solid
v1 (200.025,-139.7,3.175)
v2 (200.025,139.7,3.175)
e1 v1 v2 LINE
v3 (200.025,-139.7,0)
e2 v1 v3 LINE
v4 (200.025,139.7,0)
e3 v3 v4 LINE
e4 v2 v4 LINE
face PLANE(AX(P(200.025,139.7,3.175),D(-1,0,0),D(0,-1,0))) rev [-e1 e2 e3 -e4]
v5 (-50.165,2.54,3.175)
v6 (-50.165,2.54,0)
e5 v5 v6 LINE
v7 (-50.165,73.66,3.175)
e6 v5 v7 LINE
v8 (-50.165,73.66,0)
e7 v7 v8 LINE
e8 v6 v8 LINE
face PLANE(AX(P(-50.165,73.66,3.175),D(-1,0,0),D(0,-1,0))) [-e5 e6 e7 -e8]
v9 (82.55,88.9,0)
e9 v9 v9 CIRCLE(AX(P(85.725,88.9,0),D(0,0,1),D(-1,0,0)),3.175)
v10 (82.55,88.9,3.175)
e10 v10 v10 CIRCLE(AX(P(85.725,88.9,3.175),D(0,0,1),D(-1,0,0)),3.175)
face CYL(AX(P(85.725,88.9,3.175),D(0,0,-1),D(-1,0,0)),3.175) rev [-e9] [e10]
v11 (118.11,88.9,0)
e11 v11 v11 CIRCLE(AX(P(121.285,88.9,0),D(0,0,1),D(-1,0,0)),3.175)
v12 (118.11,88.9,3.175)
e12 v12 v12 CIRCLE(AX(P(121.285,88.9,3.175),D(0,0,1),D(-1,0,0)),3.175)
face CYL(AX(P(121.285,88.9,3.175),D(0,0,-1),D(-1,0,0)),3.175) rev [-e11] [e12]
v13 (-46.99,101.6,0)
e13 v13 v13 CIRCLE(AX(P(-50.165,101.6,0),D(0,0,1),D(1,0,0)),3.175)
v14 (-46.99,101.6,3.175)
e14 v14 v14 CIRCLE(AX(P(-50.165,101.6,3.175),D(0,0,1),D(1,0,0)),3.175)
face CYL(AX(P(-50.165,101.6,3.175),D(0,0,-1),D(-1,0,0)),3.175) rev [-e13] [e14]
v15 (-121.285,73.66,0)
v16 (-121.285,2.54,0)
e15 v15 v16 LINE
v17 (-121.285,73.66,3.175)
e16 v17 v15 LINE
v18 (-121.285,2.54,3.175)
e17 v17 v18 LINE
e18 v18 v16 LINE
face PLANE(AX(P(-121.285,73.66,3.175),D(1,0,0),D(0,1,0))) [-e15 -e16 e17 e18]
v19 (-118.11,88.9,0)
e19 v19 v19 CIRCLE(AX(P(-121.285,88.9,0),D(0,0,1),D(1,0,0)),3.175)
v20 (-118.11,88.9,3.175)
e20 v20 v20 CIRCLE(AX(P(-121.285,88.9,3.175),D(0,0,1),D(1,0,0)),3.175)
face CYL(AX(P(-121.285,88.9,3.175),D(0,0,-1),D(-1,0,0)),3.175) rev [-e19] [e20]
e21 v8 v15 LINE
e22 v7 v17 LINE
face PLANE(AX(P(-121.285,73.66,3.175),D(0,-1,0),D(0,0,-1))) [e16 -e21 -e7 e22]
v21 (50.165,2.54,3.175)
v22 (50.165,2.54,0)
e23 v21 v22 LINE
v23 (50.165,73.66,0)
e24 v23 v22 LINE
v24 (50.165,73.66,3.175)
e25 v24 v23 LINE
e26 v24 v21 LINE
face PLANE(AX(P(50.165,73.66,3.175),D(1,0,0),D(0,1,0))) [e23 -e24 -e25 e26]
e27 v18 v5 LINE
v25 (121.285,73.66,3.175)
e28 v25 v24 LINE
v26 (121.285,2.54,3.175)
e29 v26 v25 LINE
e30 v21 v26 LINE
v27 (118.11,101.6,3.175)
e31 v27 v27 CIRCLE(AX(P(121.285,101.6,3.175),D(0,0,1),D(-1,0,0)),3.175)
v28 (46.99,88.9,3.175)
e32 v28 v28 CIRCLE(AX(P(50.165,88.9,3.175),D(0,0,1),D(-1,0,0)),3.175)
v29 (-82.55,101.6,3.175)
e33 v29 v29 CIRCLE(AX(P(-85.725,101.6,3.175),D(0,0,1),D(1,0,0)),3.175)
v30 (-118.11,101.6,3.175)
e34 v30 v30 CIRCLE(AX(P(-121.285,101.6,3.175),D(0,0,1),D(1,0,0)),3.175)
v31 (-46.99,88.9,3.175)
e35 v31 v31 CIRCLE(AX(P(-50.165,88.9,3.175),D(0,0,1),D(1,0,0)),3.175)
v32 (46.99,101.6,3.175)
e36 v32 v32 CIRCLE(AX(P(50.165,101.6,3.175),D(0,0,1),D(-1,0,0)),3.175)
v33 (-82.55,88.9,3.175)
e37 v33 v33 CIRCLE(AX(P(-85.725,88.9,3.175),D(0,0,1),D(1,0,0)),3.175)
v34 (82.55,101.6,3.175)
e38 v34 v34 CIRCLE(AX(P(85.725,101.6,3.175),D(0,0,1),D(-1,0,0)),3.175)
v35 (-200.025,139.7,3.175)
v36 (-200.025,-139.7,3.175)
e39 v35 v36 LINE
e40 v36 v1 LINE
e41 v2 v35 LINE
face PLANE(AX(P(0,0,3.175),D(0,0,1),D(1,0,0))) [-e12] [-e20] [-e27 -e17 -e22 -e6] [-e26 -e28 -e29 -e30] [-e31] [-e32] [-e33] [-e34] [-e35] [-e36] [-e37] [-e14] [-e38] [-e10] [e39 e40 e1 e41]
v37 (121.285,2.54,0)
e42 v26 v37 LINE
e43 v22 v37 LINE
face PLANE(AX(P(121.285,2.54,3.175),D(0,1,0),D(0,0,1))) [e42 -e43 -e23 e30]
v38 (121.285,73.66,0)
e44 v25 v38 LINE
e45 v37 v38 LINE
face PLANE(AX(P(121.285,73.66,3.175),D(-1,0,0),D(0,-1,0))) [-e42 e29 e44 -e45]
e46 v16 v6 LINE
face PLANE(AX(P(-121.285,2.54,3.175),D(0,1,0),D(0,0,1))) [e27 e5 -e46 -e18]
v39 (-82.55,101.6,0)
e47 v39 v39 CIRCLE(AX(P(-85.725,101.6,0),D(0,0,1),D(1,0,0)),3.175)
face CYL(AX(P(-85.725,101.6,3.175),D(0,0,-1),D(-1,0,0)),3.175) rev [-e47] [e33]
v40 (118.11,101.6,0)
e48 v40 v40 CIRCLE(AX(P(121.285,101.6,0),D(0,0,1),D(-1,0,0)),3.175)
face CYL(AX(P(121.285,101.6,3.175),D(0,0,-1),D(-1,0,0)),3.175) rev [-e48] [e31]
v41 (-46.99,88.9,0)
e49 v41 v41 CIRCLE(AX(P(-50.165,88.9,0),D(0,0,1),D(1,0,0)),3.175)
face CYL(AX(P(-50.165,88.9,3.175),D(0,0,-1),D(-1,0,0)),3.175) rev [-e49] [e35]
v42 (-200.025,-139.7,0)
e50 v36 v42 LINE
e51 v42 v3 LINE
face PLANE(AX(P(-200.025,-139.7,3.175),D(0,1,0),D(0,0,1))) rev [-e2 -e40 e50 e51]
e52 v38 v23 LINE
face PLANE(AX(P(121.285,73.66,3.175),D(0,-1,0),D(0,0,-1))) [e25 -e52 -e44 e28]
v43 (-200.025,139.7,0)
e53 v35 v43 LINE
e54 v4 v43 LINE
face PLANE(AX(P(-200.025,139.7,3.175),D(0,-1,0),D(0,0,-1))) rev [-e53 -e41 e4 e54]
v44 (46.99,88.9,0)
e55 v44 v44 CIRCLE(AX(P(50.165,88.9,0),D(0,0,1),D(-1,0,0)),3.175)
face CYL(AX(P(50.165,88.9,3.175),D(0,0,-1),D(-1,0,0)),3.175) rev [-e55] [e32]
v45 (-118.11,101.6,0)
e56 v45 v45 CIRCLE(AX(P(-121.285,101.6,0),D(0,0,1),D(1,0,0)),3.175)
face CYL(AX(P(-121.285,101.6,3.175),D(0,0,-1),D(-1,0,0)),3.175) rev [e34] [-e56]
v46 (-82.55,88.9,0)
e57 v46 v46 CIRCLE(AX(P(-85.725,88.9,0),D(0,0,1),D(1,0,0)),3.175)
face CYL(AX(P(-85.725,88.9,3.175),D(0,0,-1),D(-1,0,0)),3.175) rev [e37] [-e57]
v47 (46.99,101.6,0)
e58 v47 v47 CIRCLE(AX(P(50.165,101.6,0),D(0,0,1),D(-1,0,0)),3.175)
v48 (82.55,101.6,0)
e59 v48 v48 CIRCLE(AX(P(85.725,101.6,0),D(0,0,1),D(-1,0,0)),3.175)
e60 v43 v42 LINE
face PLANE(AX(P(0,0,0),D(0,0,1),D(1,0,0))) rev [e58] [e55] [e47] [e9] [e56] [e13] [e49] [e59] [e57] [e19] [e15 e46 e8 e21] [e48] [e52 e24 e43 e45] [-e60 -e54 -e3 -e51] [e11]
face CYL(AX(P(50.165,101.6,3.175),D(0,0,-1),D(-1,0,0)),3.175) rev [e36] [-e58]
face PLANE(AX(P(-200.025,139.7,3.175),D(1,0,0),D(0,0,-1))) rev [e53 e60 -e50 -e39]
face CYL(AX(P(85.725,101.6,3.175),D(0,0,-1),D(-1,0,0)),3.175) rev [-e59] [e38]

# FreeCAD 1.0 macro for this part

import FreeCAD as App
import Part
import Sketcher
Q = App.Units.Quantity


def add_polygon(sketch, points):
    """Adds a closed chain of lines whose ends are joined by coincident constraints."""
    first, n = sketch.GeometryCount, len(points)
    for a, b in zip(points, points[1:] + points[:1]):
        sketch.addGeometry(Part.LineSegment(App.Vector(*a, 0), App.Vector(*b, 0)), False)
    for i in range(n):
        sketch.addConstraint(Sketcher.Constraint("Coincident", first + i, 2, first + (i + 1) % n, 1))

doc = App.newDocument("Part")
params = doc.addObject("Spreadsheet::Sheet", "Params")
for row, (alias, value) in enumerate([
    ("sketch1_diameter", "0.25 in"),
    ("sketch1_height", "11 in"),
    ("sketch1_width", "2.8 in"),
    ("sketch1_width2", "15.75 in"),
    ("pad1_length", "0.125 in"),
], start=1):
    params.set(f"A{row}", alias)
    params.set(f"B{row}", "=" + value)
    params.setAlias(f"B{row}", alias)

body = doc.addObject("PartDesign::Body", "Body")

sketch1 = body.newObject("Sketcher::SketchObject", "Sketch")
sketch1.AttachmentSupport = (doc.getObject("XY_Plane"), [""])
sketch1.MapMode = "FlatFace"
add_polygon(sketch1, [(-200.025, 139.7), (-200.025, -139.7), (200.025, -139.7), (200.025, 139.7)])
add_polygon(sketch1, [(-50.165, 2.54), (-121.285, 2.54), (-121.285, 73.66), (-50.165, 73.66)])
add_polygon(sketch1, [(121.285, 2.54), (50.165, 2.54), (50.165, 73.66), (121.285, 73.66)])
sketch1.addGeometry(Part.Circle(App.Vector(-121.285, 88.9, 0), App.Vector(0, 0, 1), 3.175), False)
sketch1.addGeometry(Part.Circle(App.Vector(-85.725, 88.9, 0), App.Vector(0, 0, 1), 3.175), False)
sketch1.addGeometry(Part.Circle(App.Vector(-121.285, 101.6, 0), App.Vector(0, 0, 1), 3.175), False)
sketch1.addGeometry(Part.Circle(App.Vector(-85.725, 101.6, 0), App.Vector(0, 0, 1), 3.175), False)
sketch1.addGeometry(Part.Circle(App.Vector(-50.165, 88.9, 0), App.Vector(0, 0, 1), 3.175), False)
sketch1.addGeometry(Part.Circle(App.Vector(-50.165, 101.6, 0), App.Vector(0, 0, 1), 3.175), False)
sketch1.addGeometry(Part.Circle(App.Vector(50.165, 88.9, 0), App.Vector(0, 0, 1), 3.175), False)
sketch1.addGeometry(Part.Circle(App.Vector(50.165, 101.6, 0), App.Vector(0, 0, 1), 3.175), False)
sketch1.addGeometry(Part.Circle(App.Vector(85.725, 88.9, 0), App.Vector(0, 0, 1), 3.175), False)
sketch1.addGeometry(Part.Circle(App.Vector(121.285, 88.9, 0), App.Vector(0, 0, 1), 3.175), False)
sketch1.addGeometry(Part.Circle(App.Vector(85.725, 101.6, 0), App.Vector(0, 0, 1), 3.175), False)
sketch1.addGeometry(Part.Circle(App.Vector(121.285, 101.6, 0), App.Vector(0, 0, 1), 3.175), False)
sketch1.addConstraint(Sketcher.Constraint("Vertical", 0))
sketch1.addConstraint(Sketcher.Constraint("Horizontal", 1))
sketch1.addConstraint(Sketcher.Constraint("Vertical", 2))
sketch1.addConstraint(Sketcher.Constraint("Horizontal", 3))
sketch1.addConstraint(Sketcher.Constraint("Horizontal", 4))
sketch1.addConstraint(Sketcher.Constraint("Vertical", 5))
sketch1.addConstraint(Sketcher.Constraint("Horizontal", 6))
sketch1.addConstraint(Sketcher.Constraint("Vertical", 7))
sketch1.addConstraint(Sketcher.Constraint("Horizontal", 8))
sketch1.addConstraint(Sketcher.Constraint("Vertical", 9))
sketch1.addConstraint(Sketcher.Constraint("Horizontal", 10))
sketch1.addConstraint(Sketcher.Constraint("Vertical", 11))
sketch1.addConstraint(Sketcher.Constraint("Equal", 12, 13))
sketch1.addConstraint(Sketcher.Constraint("Equal", 13, 14))
sketch1.addConstraint(Sketcher.Constraint("Equal", 14, 15))
sketch1.addConstraint(Sketcher.Constraint("Equal", 15, 16))
sketch1.addConstraint(Sketcher.Constraint("Equal", 16, 17))
sketch1.addConstraint(Sketcher.Constraint("Equal", 17, 18))
sketch1.addConstraint(Sketcher.Constraint("Equal", 18, 19))
sketch1.addConstraint(Sketcher.Constraint("Equal", 19, 20))
sketch1.addConstraint(Sketcher.Constraint("Equal", 20, 21))
sketch1.addConstraint(Sketcher.Constraint("Equal", 21, 22))
sketch1.addConstraint(Sketcher.Constraint("Equal", 22, 23))
sketch1.addConstraint(Sketcher.Constraint("Symmetric", 0, 2, 2, 2, -1, 1))
sketch1.addConstraint(Sketcher.Constraint("Symmetric", 16, 3, 18, 3, -2))
sketch1.addConstraint(Sketcher.Constraint("Symmetric", 17, 3, 19, 3, -2))
sketch1.addConstraint(Sketcher.Constraint("Symmetric", 13, 3, 20, 3, -2))
sketch1.addConstraint(Sketcher.Constraint("Symmetric", 12, 3, 21, 3, -2))
sketch1.addConstraint(Sketcher.Constraint("Symmetric", 15, 3, 22, 3, -2))
sketch1.addConstraint(Sketcher.Constraint("Symmetric", 14, 3, 23, 3, -2))
sketch1.addConstraint(Sketcher.Constraint("Symmetric", 7, 2, 8, 2, -2))
sketch1.addConstraint(Sketcher.Constraint("Symmetric", 5, 2, 10, 2, -2))
sketch1.addConstraint(Sketcher.Constraint("Horizontal", 12, 3, 13, 3))
sketch1.addConstraint(Sketcher.Constraint("Horizontal", 14, 3, 15, 3))
sketch1.addConstraint(Sketcher.Constraint("Horizontal", 13, 3, 16, 3))
sketch1.addConstraint(Sketcher.Constraint("Horizontal", 15, 3, 17, 3))
sketch1.addConstraint(Sketcher.Constraint("Vertical", 12, 3, 14, 3))
sketch1.addConstraint(Sketcher.Constraint("Vertical", 13, 3, 15, 3))
sketch1.addConstraint(Sketcher.Constraint("Vertical", 16, 3, 17, 3))
sketch1.addConstraint(Sketcher.Constraint("Vertical", 14, 3, 4, 2))
sketch1.addConstraint(Sketcher.Constraint("Vertical", 17, 3, 6, 2))
sketch1.addConstraint(Sketcher.Constraint("Equal", 10, 5))
sketch1.addConstraint(Sketcher.Constraint("Diameter", 12, Q("0.25 in")))
sketch1.addConstraint(Sketcher.Constraint("DistanceY", 0, 2, 0, 1, Q("11 in")))
sketch1.addConstraint(Sketcher.Constraint("DistanceX", 4, 2, 4, 1, Q("2.8 in")))
sketch1.addConstraint(Sketcher.Constraint("DistanceY", -1, 1, 14, 3, Q("4 in")))
sketch1.addConstraint(Sketcher.Constraint("DistanceY", 0, 2, 12, 3, Q("9 in")))
sketch1.addConstraint(Sketcher.Constraint("DistanceX", 1, 1, 1, 2, Q("15.75 in")))
sketch1.addConstraint(Sketcher.Constraint("DistanceY", -1, 1, 4, 2, Q("0.1 in")))
sketch1.addConstraint(Sketcher.Constraint("DistanceX", 12, 3, 13, 3, Q("1.4 in")))
sketch1.addConstraint(Sketcher.Constraint("DistanceX", 0, 2, 12, 3, Q("3.1 in")))
sketch1.setExpression("Constraints[54]", "Params.sketch1_diameter")
sketch1.setExpression("Constraints[55]", "Params.sketch1_height")
sketch1.setExpression("Constraints[56]", "Params.sketch1_width")
sketch1.setExpression("Constraints[59]", "Params.sketch1_width2")
pad1 = body.newObject("PartDesign::Pad", "Pad")
pad1.Profile = sketch1
pad1.setExpression("Length", "Params.pad1_length")

doc.recompute()
